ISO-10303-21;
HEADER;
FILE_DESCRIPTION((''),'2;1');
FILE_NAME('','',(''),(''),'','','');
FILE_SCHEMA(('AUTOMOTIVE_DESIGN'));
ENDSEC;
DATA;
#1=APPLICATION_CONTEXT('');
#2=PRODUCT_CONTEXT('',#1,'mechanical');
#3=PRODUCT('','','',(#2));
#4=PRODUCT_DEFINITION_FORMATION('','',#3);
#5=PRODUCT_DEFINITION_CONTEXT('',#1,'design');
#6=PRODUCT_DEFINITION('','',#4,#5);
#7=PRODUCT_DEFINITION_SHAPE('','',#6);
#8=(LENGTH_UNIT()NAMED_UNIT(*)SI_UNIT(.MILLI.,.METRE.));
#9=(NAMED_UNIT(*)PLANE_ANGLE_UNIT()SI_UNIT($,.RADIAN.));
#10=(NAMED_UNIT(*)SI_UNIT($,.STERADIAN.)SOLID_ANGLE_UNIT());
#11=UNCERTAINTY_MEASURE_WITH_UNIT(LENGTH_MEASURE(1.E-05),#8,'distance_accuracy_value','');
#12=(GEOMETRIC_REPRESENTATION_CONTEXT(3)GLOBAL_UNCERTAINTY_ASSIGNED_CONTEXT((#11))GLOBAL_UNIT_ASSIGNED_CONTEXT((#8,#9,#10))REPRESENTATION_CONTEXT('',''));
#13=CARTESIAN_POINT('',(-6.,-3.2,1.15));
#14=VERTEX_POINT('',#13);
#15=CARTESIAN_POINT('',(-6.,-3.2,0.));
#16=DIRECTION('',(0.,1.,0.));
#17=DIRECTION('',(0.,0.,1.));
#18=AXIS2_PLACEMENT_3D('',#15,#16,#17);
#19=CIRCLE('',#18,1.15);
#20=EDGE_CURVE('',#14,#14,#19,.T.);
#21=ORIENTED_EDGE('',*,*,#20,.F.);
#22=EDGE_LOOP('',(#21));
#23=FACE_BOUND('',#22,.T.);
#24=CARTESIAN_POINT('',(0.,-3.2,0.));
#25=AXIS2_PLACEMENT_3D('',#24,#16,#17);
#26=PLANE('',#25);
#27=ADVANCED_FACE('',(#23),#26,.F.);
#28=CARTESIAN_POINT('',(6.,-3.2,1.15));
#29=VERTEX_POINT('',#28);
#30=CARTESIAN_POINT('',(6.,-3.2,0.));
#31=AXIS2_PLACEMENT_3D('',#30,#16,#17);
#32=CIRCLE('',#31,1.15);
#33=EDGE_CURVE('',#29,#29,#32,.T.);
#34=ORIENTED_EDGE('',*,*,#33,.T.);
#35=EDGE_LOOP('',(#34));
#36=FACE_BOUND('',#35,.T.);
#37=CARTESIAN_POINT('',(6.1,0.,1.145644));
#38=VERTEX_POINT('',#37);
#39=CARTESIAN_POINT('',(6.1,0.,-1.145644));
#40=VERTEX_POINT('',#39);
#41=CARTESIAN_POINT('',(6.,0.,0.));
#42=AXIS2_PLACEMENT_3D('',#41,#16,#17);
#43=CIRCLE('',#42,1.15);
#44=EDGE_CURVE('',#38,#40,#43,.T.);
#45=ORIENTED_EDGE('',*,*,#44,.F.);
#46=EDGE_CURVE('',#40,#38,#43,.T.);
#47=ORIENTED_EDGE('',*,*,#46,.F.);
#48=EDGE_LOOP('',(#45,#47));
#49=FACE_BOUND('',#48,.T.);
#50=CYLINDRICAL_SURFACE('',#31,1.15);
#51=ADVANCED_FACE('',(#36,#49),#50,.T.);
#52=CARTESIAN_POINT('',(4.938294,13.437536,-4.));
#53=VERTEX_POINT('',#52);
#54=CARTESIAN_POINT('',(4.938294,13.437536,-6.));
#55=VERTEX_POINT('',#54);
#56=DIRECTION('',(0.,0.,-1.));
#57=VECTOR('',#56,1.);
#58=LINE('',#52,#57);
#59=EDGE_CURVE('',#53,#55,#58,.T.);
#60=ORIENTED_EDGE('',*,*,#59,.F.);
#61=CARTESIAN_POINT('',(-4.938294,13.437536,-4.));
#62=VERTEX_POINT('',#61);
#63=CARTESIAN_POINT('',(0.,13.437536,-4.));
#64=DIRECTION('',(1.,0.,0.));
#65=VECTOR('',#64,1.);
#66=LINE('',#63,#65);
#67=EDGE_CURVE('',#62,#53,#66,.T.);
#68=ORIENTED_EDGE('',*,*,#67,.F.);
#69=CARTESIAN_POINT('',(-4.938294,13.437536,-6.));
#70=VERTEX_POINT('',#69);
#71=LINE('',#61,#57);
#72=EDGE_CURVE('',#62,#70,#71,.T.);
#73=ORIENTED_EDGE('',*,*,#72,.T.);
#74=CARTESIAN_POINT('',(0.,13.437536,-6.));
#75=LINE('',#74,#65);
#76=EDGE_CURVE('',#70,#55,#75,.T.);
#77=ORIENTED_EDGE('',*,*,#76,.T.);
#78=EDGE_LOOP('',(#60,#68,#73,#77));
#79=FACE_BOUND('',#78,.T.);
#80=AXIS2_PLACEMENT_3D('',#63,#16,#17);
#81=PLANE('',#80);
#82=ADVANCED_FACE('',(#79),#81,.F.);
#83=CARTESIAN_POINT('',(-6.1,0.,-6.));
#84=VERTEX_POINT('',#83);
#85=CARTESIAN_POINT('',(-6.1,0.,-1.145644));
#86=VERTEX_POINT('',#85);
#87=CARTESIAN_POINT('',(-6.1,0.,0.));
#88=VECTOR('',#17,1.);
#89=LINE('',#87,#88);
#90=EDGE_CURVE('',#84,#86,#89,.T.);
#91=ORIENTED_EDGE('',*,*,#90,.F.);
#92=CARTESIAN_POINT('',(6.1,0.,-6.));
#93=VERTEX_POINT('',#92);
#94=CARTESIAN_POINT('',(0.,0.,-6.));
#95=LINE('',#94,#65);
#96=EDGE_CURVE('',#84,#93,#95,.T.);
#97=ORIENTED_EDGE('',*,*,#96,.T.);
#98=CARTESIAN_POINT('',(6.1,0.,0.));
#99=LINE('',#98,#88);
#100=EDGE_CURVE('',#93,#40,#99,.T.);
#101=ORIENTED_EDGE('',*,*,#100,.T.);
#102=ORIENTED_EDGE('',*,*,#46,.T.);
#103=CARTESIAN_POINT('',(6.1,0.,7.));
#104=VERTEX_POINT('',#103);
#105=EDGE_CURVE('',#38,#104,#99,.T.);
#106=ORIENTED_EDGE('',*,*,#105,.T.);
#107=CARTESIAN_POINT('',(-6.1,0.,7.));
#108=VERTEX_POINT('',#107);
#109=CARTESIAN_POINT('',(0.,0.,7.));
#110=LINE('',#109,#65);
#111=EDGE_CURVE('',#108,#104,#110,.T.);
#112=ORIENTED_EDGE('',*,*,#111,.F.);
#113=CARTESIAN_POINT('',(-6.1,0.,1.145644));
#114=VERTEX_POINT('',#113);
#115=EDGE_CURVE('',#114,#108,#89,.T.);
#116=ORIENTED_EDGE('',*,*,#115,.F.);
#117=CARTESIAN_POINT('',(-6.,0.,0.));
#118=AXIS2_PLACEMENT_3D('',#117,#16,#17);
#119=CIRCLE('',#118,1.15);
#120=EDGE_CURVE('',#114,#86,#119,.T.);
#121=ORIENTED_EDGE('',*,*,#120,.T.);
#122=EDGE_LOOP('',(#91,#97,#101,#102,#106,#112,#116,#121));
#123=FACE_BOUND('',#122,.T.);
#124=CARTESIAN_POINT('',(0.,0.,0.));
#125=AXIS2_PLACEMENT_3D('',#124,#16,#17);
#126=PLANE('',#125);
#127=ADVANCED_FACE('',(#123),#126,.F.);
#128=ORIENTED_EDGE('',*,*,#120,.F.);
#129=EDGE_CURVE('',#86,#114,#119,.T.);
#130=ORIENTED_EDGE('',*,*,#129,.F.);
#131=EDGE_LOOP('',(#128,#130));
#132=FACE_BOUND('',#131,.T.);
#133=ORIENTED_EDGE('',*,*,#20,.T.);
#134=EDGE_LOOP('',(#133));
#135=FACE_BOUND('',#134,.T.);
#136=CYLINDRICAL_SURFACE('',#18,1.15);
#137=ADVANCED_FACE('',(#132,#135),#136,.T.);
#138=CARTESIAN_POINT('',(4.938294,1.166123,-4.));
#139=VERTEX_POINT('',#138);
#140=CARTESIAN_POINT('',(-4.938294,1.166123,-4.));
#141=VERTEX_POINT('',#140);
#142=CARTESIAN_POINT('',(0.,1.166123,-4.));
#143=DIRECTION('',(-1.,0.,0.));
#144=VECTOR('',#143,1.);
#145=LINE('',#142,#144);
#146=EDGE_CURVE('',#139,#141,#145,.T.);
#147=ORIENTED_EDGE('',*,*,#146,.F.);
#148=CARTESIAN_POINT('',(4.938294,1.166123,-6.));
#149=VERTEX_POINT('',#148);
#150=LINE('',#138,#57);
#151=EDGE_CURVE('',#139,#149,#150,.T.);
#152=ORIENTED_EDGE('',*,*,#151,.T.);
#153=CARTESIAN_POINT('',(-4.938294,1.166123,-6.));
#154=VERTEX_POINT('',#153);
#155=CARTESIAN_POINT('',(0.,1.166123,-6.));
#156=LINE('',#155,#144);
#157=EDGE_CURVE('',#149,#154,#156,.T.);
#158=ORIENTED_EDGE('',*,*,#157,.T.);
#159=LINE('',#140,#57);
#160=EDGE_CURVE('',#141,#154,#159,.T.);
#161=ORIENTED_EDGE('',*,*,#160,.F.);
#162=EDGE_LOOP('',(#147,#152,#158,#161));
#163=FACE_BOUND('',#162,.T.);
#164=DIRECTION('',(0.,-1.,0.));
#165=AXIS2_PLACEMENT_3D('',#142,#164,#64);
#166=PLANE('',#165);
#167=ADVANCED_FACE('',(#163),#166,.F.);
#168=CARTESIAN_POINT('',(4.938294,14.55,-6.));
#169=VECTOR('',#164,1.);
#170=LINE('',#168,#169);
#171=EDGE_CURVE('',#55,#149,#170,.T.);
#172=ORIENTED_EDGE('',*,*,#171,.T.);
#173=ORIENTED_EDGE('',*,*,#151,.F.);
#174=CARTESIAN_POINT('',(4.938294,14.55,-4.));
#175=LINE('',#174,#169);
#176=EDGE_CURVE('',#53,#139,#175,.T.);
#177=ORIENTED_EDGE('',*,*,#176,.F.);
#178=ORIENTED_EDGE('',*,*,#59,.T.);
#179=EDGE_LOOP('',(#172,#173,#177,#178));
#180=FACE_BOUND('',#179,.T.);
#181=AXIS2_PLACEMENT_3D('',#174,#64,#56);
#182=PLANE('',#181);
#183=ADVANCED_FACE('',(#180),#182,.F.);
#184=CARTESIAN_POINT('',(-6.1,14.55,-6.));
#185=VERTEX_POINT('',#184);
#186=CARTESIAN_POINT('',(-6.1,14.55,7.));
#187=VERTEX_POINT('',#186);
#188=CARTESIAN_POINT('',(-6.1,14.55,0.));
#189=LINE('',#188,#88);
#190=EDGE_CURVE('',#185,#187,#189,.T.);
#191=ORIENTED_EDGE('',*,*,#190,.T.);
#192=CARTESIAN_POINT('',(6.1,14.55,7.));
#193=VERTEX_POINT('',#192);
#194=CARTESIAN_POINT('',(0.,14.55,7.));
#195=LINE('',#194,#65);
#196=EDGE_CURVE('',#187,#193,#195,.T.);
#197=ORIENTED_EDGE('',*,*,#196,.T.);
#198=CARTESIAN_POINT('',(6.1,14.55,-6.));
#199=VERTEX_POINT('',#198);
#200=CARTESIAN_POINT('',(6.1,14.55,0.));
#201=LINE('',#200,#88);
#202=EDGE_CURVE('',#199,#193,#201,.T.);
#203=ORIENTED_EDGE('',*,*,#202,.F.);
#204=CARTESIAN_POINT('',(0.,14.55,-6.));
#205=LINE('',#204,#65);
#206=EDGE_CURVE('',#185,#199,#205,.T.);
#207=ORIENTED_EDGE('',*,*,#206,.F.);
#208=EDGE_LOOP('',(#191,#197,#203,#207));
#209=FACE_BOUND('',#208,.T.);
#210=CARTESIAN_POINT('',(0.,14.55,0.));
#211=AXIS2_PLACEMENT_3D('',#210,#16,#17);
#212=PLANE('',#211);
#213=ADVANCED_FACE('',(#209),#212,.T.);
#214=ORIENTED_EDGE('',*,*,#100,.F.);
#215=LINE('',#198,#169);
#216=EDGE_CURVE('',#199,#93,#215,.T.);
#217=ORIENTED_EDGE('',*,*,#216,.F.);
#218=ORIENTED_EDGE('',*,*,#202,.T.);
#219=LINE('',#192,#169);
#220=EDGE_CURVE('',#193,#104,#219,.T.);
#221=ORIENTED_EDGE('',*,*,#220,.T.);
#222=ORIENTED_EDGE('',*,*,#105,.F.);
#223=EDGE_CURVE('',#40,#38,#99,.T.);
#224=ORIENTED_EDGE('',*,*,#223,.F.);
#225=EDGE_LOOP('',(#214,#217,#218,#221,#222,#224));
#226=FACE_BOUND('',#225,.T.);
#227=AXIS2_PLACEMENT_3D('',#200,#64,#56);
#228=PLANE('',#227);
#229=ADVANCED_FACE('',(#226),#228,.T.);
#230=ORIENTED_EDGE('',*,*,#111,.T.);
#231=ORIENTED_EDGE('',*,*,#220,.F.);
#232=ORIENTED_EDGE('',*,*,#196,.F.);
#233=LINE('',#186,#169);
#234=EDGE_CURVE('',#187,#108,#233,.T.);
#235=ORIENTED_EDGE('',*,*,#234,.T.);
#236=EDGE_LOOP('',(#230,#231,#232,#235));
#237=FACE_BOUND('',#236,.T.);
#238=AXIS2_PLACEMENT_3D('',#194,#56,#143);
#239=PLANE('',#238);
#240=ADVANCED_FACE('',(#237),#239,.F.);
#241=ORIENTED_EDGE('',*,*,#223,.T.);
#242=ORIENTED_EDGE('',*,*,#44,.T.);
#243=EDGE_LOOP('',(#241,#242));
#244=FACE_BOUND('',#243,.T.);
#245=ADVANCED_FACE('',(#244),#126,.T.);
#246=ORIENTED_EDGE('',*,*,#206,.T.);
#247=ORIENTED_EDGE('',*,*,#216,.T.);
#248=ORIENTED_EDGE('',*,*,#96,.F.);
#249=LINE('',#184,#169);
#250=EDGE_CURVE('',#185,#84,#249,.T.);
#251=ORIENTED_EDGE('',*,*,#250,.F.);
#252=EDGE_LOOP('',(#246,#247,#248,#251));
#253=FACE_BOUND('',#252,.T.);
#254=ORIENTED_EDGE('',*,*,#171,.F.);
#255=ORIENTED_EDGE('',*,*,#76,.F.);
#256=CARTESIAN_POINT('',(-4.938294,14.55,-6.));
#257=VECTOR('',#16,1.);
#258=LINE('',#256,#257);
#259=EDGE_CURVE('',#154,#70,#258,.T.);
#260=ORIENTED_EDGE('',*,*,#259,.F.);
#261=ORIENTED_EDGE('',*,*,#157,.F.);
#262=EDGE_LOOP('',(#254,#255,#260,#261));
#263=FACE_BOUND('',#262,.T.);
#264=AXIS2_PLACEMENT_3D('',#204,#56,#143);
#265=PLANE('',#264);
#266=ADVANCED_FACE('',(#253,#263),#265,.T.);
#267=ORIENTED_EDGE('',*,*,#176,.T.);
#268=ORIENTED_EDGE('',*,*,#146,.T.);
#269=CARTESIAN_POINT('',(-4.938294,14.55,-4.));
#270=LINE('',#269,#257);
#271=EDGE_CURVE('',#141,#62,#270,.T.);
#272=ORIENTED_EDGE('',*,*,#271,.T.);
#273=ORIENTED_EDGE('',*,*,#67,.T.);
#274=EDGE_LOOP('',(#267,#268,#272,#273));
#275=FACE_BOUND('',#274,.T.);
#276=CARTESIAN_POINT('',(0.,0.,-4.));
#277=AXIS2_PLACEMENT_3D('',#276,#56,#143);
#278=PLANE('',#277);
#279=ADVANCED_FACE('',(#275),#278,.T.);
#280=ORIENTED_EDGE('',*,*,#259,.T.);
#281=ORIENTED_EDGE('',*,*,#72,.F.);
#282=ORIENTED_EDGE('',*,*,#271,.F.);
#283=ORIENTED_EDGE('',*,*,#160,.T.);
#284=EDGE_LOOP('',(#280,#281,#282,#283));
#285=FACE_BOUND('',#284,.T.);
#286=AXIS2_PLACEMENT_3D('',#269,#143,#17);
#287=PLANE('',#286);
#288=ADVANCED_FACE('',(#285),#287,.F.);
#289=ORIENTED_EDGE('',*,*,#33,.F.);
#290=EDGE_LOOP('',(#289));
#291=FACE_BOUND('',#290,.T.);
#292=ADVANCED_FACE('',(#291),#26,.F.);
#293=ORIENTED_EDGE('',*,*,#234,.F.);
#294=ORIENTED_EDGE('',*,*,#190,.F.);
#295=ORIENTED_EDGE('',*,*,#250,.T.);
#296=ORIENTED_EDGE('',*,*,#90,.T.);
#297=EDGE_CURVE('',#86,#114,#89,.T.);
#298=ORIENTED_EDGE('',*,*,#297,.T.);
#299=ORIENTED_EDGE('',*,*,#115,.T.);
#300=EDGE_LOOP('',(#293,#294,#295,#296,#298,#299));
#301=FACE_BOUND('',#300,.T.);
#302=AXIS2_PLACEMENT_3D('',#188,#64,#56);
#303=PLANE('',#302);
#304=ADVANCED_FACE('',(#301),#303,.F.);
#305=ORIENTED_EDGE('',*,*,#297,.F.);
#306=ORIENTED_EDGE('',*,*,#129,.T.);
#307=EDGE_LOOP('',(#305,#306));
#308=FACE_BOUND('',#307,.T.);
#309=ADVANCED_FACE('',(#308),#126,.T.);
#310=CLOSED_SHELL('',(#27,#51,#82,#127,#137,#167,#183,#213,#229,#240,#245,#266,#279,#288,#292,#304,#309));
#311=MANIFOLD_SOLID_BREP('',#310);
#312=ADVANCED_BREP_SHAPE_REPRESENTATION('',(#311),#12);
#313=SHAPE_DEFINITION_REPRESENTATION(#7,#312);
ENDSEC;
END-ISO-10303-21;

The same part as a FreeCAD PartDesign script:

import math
import FreeCAD as App
import Part
import Sketcher

V = App.Vector


def add_polygon(sketch, points):
    """Adds a closed chain of lines whose ends are joined by coincident constraints."""
    first, n = sketch.GeometryCount, len(points)
    for a, b in zip(points, points[1:] + points[:1]):
        sketch.addGeometry(Part.LineSegment(App.Vector(*a, 0), App.Vector(*b, 0)), False)
    for i in range(n):
        sketch.addConstraint(Sketcher.Constraint("Coincident", first + i, 2, first + (i + 1) % n, 1))

doc = App.newDocument("Part")
params = doc.addObject("Spreadsheet::Sheet", "Params")
for row, (alias, value) in enumerate([
    ("sketch1_radius", "1.15 mm"),
    ("pad1_length", "3.2 mm"),
    ("sketch2_height", "13 mm"),
    ("sketch2_width", "12.2 mm"),
    ("pad2_length", "14.55 mm"),
    ("pocket1_length", "2 mm"),
], start=1):
    params.set(f"A{row}", alias)
    params.set(f"B{row}", "=" + value)
    params.setAlias(f"B{row}", alias)

body = doc.addObject("PartDesign::Body", "Body")
body.AllowCompound = True

sketch1 = body.newObject("Sketcher::SketchObject", "Sketch")
sketch1.AttachmentSupport = (doc.getObject("XZ_Plane"), [""])
sketch1.MapMode = "FlatFace"
sketch1.addGeometry(Part.ArcOfCircle(Part.Circle(V(-6, 0, 0), V(0, 0, 1), 1.2), math.radians(-95), math.radians(0)), False)
sketch1.addGeometry(Part.ArcOfCircle(Part.Circle(V(-6, 0, 0), V(0, 0, 1), 1.1), math.radians(95), math.radians(265)), False)
sketch1.addGeometry(Part.ArcOfCircle(Part.Circle(V(-6, 0, 0), V(0, 0, 1), 1.2), math.radians(0), math.radians(95)), False)
sketch1.addGeometry(Part.ArcOfCircle(Part.Circle(V(6, 0, 0), V(0, 0, 1), 1.2), math.radians(-85), math.radians(0)), False)
sketch1.addGeometry(Part.ArcOfCircle(Part.Circle(V(6, 0, 0), V(0, 0, 1), 1.1), math.radians(85), math.radians(275)), False)
sketch1.addGeometry(Part.ArcOfCircle(Part.Circle(V(6, 0, 0), V(0, 0, 1), 1.2), math.radians(0), math.radians(85)), False)
sketch1.addConstraint(Sketcher.Constraint("Tangent", 0, 1, 1, 2))
sketch1.addConstraint(Sketcher.Constraint("Tangent", 1, 1, 2, 2))
sketch1.addConstraint(Sketcher.Constraint("Tangent", 2, 1, 0, 2))
sketch1.addConstraint(Sketcher.Constraint("Tangent", 3, 1, 4, 2))
sketch1.addConstraint(Sketcher.Constraint("Tangent", 4, 1, 5, 2))
sketch1.addConstraint(Sketcher.Constraint("Tangent", 5, 1, 3, 2))
sketch1.addConstraint(Sketcher.Constraint("Equal", 2, 3))
sketch1.addConstraint(Sketcher.Constraint("Symmetric", 0, 3, 3, 3, -1, 1))
sketch1.addConstraint(Sketcher.Constraint("Symmetric", 0, 1, 3, 1, -2))
sketch1.addConstraint(Sketcher.Constraint("PointOnObject", 2, 1, -1))
sketch1.addConstraint(Sketcher.Constraint("PointOnObject", 5, 1, -1))
sketch1.addConstraint(Sketcher.Constraint("Horizontal", 1, 1, 4, 1))
sketch1.addConstraint(Sketcher.Constraint("Vertical", 0, 1, 1, 1))
sketch1.addConstraint(Sketcher.Constraint("Radius", 0, 1.15))
sketch1.addConstraint(Sketcher.Constraint("DistanceX", 0, 3, -1, 1, 6.0))
sketch1.addConstraint(Sketcher.Constraint("DistanceX", 0, 1, -1, 1, 6.1))
sketch1.setExpression("Constraints[13]", "Params.sketch1_radius")
pad1 = body.newObject("PartDesign::Pad", "Pad")
pad1.Profile = sketch1
pad1.setExpression("Length", "Params.pad1_length")

sketch2 = body.newObject("Sketcher::SketchObject", "Sketch001")
sketch2.AttachmentSupport = (doc.getObject("XZ_Plane"), [""])
sketch2.MapMode = "FlatFace"
add_polygon(sketch2, [(-6, -6), (-6, 7), (6, 7), (6, -6)])
sketch2.addConstraint(Sketcher.Constraint("Vertical", 0))
sketch2.addConstraint(Sketcher.Constraint("Horizontal", 1))
sketch2.addConstraint(Sketcher.Constraint("Vertical", 2))
sketch2.addConstraint(Sketcher.Constraint("Horizontal", 3))
sketch2.addConstraint(Sketcher.Constraint("DistanceY", 0, 1, 0, 2, 13.0))
sketch2.addConstraint(Sketcher.Constraint("DistanceX", 1, 1, 1, 2, 12.2))
sketch2.addConstraint(Sketcher.Constraint("DistanceY", -1, 1, 0, 2, 7.0))
sketch2.addConstraint(Sketcher.Constraint("DistanceX", 0, 2, -1, 1, 6.1))
sketch2.setExpression("Constraints[8]", "Params.sketch2_height")
sketch2.setExpression("Constraints[9]", "Params.sketch2_width")
pad2 = body.newObject("PartDesign::Pad", "Pad001")
pad2.Profile = sketch2
pad2.setExpression("Length", "Params.pad2_length")
pad2.Reversed = True

sketch3 = body.newObject("Sketcher::SketchObject", "Sketch002")
sketch3.AttachmentSupport = (doc.getObject("XY_Plane"), [""])
sketch3.MapMode = "FlatFace"
sketch3.AttachmentOffset = App.Placement(V(0, 0, -6), App.Rotation())
add_polygon(sketch3, [(-5, 13), (-5, 1), (5, 1), (5, 13)])
sketch3.addConstraint(Sketcher.Constraint("Vertical", 0))
sketch3.addConstraint(Sketcher.Constraint("Horizontal", 1))
sketch3.addConstraint(Sketcher.Constraint("Vertical", 2))
sketch3.addConstraint(Sketcher.Constraint("Horizontal", 3))
sketch3.addConstraint(Sketcher.Constraint("DistanceX", 1, 1, 1, 2, 9.876588))
sketch3.addConstraint(Sketcher.Constraint("DistanceY", 0, 2, 0, 1, 12.271413))
sketch3.addConstraint(Sketcher.Constraint("DistanceX", 0, 2, -1, 1, 4.938294))
sketch3.addConstraint(Sketcher.Constraint("DistanceY", -1, 1, 0, 2, 1.166123))
pocket1 = body.newObject("PartDesign::Pocket", "Pocket")
pocket1.Profile = sketch3
pocket1.setExpression("Length", "Params.pocket1_length")
pocket1.Reversed = True

doc.recompute()
